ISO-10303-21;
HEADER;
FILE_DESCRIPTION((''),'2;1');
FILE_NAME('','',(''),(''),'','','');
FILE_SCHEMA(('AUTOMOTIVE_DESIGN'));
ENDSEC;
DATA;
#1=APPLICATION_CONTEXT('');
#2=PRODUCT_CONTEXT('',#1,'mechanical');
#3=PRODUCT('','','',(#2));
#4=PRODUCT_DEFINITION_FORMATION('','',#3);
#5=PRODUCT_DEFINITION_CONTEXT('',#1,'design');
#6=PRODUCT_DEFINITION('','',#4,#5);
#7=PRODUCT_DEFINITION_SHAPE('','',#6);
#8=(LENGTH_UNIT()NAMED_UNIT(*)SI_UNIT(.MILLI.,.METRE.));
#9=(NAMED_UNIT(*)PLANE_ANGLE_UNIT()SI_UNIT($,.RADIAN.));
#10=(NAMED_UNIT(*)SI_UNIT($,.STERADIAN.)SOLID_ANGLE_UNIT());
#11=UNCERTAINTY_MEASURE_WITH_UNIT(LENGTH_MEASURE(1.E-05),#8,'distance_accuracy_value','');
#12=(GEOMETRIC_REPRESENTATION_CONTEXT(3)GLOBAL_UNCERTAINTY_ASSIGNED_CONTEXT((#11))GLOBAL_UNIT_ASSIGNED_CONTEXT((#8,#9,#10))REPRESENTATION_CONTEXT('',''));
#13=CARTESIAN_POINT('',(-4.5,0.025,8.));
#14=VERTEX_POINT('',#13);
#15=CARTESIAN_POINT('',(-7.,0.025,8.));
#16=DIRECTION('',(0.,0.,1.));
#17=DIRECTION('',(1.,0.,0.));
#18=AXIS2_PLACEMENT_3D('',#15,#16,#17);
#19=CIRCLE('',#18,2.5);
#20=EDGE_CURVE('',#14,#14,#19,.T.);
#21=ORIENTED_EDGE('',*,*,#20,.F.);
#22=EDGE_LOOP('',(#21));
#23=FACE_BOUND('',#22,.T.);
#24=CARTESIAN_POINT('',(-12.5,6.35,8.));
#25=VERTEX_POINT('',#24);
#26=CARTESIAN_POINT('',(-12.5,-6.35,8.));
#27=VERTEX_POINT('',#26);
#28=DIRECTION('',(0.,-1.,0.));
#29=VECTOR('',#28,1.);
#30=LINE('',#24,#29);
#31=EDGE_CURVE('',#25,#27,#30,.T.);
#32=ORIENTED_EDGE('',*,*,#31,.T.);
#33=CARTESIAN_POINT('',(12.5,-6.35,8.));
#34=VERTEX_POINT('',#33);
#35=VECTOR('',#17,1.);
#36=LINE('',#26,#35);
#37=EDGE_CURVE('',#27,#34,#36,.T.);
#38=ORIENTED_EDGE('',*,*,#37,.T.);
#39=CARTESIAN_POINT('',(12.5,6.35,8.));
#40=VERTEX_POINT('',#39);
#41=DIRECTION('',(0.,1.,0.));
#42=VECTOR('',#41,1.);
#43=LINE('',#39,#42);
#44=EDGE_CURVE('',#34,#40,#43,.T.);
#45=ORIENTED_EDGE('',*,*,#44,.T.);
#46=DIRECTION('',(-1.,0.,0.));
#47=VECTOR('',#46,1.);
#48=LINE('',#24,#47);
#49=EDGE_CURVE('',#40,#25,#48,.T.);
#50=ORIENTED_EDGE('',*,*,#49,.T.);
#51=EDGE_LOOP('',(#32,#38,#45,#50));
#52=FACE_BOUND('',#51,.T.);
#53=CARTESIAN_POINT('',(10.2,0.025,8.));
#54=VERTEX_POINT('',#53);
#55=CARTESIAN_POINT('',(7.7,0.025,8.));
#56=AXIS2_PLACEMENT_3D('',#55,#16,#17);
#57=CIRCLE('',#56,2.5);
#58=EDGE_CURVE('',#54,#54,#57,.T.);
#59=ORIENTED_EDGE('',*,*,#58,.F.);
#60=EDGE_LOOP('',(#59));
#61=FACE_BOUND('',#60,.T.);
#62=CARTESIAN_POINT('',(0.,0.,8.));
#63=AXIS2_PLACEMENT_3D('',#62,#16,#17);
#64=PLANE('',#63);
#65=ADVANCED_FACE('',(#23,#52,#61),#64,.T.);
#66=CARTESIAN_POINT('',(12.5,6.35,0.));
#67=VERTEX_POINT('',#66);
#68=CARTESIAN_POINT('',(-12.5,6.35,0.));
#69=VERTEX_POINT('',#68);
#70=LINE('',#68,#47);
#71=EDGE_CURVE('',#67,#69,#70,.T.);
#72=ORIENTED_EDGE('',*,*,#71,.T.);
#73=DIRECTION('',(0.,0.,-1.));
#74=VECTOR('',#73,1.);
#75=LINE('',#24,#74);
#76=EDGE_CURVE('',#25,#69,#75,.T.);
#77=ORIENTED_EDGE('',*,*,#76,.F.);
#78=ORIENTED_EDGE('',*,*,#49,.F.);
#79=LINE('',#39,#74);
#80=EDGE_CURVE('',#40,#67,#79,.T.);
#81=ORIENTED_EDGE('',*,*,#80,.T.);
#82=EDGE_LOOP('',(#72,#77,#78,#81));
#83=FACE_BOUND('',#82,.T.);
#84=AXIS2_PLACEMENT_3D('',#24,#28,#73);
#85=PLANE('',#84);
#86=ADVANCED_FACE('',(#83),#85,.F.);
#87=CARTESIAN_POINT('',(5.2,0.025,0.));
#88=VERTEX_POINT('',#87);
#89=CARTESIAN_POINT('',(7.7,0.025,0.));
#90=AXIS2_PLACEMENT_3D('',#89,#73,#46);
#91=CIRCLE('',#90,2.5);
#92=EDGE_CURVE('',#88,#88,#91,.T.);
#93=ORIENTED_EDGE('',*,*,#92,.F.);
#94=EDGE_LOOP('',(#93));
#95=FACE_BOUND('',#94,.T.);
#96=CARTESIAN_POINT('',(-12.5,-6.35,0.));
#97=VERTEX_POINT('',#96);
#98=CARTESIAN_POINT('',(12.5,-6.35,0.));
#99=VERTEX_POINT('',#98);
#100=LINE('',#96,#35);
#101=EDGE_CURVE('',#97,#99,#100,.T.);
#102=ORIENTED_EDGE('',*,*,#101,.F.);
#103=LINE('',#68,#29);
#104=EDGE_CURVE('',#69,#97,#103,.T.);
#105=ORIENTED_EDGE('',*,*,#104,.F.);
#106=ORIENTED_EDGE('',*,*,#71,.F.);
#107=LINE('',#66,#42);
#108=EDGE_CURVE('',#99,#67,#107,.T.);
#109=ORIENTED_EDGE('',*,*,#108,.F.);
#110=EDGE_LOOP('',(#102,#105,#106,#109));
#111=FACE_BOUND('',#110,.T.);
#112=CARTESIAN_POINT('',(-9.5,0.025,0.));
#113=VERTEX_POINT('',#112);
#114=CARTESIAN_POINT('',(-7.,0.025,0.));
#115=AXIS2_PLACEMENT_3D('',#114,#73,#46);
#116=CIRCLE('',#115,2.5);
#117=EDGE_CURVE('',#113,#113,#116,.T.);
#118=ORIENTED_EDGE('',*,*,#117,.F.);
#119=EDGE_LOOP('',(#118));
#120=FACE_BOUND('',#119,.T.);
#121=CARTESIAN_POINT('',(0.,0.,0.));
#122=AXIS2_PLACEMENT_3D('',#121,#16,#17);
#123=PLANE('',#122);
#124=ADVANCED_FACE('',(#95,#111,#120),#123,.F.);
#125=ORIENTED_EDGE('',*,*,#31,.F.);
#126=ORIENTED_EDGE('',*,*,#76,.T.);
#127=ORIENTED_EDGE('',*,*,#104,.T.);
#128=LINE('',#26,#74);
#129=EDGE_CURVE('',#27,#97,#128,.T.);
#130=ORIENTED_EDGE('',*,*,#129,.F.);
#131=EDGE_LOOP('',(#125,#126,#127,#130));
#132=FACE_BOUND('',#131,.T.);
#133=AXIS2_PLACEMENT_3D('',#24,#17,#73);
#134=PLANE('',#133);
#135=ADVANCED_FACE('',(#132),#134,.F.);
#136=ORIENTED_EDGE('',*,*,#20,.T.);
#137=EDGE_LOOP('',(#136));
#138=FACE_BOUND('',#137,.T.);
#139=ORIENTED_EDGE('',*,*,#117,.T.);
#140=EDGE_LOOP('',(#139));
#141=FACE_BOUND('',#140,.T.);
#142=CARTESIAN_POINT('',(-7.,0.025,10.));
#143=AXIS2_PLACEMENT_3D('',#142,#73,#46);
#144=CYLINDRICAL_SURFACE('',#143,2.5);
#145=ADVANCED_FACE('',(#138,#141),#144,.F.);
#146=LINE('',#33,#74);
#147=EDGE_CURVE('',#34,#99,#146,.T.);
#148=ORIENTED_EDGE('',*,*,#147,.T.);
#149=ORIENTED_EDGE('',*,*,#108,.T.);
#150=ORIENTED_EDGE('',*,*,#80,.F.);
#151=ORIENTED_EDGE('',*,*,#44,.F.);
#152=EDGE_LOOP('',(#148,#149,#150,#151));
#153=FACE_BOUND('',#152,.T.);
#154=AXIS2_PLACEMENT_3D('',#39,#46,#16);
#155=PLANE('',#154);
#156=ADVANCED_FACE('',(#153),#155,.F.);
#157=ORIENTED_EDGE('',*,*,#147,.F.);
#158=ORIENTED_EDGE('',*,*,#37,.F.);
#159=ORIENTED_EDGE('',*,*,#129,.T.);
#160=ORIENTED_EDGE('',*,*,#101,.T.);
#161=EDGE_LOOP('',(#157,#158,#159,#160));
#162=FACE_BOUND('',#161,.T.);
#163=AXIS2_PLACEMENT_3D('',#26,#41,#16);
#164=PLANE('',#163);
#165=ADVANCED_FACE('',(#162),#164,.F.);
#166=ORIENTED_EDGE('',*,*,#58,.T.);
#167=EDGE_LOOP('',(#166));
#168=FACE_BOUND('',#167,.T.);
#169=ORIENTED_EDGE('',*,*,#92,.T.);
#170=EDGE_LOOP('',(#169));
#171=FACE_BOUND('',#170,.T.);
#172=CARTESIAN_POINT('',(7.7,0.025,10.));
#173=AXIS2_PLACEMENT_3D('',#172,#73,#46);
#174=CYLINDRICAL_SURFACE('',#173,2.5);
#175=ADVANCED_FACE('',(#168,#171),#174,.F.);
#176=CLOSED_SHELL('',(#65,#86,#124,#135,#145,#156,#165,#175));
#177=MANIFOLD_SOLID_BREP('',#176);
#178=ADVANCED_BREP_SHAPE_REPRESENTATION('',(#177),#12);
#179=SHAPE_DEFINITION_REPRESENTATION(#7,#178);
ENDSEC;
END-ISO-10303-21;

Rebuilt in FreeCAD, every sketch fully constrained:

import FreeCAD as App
import Part
import Sketcher

V = App.Vector
Q = App.Units.Quantity


def add_polygon(sketch, points):
    """Adds a closed chain of lines whose ends are joined by coincident constraints."""
    first, n = sketch.GeometryCount, len(points)
    for a, b in zip(points, points[1:] + points[:1]):
        sketch.addGeometry(Part.LineSegment(App.Vector(*a, 0), App.Vector(*b, 0)), False)
    for i in range(n):
        sketch.addConstraint(Sketcher.Constraint("Coincident", first + i, 2, first + (i + 1) % n, 1))

doc = App.newDocument("Part")
body = doc.addObject("PartDesign::Body", "Body")

sketch1 = body.newObject("Sketcher::SketchObject", "Sketch")
sketch1.AttachmentSupport = (doc.getObject("XY_Plane"), [""])
sketch1.MapMode = "FlatFace"
add_polygon(sketch1, [(-12, 6), (-12, -6), (12, -6), (12, 6)])
sketch1.addConstraint([
    Sketcher.Constraint("Vertical", 0),
    Sketcher.Constraint("Horizontal", 1),
    Sketcher.Constraint("Vertical", 2),
    Sketcher.Constraint("Horizontal", 3),
    Sketcher.Constraint("Symmetric", 0, 2, 2, 2, -1, 1),
    Sketcher.Constraint("DistanceX", 1, 1, 1, 2, Q("25 mm")),
    Sketcher.Constraint("DistanceY", 0, 2, 0, 1, Q("12.7 mm")),
])
pad1 = body.newObject("PartDesign::Pad", "Pad")
pad1.Profile = sketch1
pad1.Length = 8

sketch2 = body.newObject("Sketcher::SketchObject", "Sketch001")
sketch2.AttachmentSupport = (doc.getObject("XY_Plane"), [""])
sketch2.MapMode = "FlatFace"
sketch2.addGeometry([
    Part.Circle(V(7.7, 0, 0), V(0, 0, 1), 2.5),
    Part.Circle(V(-7, 0, 0), V(0, 0, 1), 2.5),
], False)
sketch2.addConstraint([
    Sketcher.Constraint("Equal", 0, 1),
    Sketcher.Constraint("Horizontal", 0, 3, 1, 3),
    Sketcher.Constraint("Diameter", 0, Q("5 mm")),
    Sketcher.Constraint("DistanceX", 1, 3, -1, 1, Q("7 mm")),
    Sketcher.Constraint("DistanceX", -1, 1, 0, 3, Q("7.7 mm")),
    Sketcher.Constraint("DistanceY", -1, 1, 0, 3, Q("0.025 mm")),
])
pocket1 = body.newObject("PartDesign::Pocket", "Pocket")
pocket1.Profile = sketch2
pocket1.Length = 10
pocket1.Reversed = True

doc.recompute()
